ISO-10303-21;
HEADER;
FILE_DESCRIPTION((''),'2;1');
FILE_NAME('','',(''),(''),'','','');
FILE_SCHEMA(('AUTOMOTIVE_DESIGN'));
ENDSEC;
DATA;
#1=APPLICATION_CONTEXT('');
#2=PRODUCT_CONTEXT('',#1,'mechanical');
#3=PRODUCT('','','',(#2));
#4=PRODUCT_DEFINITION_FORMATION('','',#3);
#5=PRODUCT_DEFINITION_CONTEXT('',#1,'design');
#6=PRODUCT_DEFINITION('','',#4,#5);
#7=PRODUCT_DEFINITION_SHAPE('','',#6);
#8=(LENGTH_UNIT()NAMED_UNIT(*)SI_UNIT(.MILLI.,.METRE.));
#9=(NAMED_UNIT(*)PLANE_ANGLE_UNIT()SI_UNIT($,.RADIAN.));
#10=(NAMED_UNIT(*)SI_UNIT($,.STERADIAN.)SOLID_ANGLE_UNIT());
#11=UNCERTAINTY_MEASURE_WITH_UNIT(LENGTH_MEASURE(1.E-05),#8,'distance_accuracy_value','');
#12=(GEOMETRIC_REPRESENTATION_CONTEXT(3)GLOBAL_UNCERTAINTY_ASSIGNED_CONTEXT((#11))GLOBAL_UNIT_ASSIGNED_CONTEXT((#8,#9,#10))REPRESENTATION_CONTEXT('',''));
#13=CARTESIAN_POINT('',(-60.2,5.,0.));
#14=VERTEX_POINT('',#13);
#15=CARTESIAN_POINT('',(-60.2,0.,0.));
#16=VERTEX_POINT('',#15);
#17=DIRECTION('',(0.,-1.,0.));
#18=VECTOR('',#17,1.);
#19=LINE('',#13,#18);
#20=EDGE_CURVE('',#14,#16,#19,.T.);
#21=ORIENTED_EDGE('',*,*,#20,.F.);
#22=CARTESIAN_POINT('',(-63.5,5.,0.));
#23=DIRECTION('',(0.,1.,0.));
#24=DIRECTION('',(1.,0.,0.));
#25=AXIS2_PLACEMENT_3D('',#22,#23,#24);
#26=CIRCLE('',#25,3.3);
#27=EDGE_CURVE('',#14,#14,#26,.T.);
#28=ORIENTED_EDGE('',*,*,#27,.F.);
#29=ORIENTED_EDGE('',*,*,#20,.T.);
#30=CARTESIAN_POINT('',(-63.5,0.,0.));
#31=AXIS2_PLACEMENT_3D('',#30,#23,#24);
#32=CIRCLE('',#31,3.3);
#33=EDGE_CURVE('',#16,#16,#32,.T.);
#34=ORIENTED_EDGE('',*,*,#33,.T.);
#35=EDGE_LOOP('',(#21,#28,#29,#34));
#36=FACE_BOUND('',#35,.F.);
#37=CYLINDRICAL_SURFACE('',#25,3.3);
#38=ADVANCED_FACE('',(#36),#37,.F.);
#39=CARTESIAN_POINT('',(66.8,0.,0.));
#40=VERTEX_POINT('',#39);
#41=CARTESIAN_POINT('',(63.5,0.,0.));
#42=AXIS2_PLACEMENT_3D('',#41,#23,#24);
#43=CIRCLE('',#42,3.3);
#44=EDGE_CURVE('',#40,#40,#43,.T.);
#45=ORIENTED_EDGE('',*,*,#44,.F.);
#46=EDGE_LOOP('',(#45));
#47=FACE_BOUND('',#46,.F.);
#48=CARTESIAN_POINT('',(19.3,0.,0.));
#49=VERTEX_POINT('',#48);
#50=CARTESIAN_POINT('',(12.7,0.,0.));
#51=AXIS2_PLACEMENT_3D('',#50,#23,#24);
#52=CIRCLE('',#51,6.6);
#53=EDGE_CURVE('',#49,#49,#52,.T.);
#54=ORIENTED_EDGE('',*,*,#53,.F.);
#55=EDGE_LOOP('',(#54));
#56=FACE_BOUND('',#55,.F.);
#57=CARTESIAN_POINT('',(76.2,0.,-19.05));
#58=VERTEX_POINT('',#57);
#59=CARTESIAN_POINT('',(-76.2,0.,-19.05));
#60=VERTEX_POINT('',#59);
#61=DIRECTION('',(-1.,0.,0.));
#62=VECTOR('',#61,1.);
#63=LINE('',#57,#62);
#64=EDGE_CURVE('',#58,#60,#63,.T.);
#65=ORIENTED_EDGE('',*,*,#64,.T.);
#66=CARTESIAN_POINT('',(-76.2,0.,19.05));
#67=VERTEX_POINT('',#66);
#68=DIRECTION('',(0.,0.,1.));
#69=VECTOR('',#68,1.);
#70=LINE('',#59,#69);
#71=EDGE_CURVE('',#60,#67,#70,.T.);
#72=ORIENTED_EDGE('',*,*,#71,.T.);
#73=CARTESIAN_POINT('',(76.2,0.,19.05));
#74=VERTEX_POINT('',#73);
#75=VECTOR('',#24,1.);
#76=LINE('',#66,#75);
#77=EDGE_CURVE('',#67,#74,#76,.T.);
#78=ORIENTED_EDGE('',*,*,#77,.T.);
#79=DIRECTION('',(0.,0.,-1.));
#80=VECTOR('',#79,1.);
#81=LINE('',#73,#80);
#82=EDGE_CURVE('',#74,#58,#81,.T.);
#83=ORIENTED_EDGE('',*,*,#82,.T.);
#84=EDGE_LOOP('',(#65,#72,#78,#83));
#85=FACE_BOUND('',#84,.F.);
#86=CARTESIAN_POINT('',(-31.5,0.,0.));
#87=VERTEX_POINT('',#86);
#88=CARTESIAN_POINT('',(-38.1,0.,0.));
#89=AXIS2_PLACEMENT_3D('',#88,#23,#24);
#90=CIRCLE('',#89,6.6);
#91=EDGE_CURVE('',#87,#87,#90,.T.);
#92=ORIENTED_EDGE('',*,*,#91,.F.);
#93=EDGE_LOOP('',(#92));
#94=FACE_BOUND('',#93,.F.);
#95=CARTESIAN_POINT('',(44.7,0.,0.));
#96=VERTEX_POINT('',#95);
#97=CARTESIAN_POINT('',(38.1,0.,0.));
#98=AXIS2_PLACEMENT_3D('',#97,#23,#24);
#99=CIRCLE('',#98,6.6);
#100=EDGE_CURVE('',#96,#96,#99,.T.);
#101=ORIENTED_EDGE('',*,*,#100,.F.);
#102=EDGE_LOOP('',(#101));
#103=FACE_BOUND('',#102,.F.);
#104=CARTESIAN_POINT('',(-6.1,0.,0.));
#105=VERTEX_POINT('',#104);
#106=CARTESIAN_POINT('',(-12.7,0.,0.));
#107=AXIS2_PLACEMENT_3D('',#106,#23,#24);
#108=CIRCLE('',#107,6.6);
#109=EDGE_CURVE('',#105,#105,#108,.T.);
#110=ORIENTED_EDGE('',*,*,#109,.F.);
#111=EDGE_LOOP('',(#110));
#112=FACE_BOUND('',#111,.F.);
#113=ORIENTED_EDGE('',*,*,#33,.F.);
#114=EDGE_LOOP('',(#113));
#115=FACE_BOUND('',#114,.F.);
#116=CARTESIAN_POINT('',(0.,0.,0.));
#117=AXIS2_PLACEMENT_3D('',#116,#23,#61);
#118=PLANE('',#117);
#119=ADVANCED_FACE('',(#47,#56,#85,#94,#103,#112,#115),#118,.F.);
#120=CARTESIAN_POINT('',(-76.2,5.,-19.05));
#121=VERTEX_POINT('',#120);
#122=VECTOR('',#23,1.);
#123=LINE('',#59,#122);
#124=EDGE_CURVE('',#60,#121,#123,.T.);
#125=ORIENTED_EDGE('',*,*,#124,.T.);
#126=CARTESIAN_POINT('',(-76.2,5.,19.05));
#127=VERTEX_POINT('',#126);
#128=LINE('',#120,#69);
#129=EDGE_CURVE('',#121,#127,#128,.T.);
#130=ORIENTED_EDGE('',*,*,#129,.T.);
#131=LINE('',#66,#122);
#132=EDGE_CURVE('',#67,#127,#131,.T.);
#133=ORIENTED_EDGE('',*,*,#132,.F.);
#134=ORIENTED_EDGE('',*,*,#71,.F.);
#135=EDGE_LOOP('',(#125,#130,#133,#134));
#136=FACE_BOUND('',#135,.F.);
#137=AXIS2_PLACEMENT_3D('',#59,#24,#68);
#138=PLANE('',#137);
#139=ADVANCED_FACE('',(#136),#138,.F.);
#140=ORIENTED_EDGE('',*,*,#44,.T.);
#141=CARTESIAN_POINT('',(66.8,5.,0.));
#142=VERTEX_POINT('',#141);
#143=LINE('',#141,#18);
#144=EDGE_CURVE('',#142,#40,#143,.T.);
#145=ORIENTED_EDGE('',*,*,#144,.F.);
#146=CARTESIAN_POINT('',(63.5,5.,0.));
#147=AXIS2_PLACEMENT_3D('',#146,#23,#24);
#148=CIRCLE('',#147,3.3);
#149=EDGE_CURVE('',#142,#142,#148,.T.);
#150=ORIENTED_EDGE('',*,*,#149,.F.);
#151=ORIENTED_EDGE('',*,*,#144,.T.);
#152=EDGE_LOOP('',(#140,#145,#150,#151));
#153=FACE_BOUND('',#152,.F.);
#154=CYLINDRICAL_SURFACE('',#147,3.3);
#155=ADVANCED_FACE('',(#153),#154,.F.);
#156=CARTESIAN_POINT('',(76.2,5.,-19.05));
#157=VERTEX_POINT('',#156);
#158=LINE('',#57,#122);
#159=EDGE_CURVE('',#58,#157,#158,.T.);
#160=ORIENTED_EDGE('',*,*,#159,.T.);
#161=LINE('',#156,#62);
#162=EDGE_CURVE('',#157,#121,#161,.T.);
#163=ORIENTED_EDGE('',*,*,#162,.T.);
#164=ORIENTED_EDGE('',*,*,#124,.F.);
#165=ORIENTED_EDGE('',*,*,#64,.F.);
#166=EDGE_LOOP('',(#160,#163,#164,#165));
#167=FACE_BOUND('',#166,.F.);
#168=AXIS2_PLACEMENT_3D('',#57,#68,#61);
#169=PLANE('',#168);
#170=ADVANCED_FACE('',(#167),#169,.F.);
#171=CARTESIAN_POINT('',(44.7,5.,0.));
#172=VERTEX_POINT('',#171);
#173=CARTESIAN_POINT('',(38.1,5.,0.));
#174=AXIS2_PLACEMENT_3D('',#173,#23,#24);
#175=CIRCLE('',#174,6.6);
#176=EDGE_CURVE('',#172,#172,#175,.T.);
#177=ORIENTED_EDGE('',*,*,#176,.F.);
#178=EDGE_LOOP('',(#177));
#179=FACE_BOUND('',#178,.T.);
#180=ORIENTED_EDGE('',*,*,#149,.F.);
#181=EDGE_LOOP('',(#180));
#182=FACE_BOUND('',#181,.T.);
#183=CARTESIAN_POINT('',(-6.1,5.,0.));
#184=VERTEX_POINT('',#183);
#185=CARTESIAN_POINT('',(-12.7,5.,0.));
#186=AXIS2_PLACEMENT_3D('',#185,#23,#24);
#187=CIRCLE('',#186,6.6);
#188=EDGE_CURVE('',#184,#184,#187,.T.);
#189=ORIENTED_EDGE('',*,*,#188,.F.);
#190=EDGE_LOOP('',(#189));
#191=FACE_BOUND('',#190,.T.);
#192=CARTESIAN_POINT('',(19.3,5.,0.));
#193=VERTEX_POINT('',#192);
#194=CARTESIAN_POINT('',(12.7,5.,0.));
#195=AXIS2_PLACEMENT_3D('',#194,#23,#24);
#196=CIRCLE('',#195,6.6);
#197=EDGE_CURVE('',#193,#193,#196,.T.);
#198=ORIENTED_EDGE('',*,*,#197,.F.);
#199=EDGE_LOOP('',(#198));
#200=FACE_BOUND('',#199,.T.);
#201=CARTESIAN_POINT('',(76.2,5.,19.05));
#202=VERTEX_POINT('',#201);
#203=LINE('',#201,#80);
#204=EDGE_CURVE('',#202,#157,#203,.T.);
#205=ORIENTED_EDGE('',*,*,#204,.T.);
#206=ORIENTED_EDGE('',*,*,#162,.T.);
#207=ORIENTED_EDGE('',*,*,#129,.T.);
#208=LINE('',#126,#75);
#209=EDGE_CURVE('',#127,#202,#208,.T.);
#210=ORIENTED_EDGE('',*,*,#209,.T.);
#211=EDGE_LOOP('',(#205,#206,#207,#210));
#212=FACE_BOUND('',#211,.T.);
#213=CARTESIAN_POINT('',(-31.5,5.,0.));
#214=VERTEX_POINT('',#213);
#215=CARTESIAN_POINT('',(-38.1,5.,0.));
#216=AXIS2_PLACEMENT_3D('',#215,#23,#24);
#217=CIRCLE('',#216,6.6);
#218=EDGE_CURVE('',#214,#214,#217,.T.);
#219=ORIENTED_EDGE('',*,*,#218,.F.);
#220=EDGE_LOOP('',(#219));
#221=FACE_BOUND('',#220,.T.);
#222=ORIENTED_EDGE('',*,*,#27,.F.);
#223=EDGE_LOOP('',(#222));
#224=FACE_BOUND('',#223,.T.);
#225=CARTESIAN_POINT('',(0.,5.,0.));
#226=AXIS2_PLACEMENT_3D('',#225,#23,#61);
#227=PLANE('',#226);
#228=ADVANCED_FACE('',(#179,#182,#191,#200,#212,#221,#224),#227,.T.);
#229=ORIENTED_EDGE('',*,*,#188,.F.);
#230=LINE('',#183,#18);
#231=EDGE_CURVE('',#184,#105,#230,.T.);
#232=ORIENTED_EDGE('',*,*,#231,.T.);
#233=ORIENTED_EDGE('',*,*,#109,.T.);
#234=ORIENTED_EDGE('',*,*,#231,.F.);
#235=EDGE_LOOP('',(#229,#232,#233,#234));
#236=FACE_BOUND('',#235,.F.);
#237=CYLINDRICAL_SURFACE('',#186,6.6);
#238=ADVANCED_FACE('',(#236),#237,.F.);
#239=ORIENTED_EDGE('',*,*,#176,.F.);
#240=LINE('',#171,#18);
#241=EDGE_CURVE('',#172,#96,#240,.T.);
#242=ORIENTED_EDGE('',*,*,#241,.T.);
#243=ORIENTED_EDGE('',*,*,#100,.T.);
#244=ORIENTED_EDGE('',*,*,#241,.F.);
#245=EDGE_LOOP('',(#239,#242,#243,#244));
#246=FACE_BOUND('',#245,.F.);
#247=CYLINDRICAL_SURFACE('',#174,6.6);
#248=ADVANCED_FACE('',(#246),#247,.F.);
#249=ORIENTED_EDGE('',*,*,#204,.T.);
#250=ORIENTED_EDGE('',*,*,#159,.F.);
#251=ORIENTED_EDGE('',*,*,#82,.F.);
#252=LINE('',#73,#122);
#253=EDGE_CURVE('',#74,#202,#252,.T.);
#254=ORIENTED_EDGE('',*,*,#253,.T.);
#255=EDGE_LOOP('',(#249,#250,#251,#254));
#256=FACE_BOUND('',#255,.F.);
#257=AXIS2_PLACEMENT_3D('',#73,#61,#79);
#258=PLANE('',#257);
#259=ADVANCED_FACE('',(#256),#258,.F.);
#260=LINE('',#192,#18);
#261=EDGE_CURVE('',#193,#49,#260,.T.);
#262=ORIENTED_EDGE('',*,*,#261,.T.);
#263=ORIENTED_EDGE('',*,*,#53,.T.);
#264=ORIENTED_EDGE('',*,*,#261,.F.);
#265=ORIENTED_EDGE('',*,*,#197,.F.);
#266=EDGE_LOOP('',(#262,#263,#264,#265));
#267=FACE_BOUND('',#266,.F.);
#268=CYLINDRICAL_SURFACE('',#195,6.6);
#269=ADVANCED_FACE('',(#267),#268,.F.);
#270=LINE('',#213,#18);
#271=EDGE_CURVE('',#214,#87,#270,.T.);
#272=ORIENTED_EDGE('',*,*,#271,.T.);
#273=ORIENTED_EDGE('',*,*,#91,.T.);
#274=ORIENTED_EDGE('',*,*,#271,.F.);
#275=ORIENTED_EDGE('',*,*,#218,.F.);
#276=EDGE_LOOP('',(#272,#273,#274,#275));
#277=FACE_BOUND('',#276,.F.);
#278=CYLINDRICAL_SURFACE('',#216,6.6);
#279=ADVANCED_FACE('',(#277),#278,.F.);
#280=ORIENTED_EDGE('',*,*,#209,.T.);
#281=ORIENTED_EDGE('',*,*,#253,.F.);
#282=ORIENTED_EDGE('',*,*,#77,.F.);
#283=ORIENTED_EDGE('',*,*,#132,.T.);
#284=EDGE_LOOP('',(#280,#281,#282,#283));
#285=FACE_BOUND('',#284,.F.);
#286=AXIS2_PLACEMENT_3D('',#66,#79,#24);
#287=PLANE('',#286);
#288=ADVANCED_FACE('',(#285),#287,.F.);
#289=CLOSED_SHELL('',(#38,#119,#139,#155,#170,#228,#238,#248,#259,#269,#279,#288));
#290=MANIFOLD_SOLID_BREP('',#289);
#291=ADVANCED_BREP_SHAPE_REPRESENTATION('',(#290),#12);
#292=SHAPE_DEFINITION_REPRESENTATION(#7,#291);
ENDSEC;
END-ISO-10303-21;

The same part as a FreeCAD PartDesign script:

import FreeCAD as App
import Part
import Sketcher

V = App.Vector


def add_polygon(sketch, points):
    """Adds a closed chain of lines whose ends are joined by coincident constraints."""
    first, n = sketch.GeometryCount, len(points)
    for a, b in zip(points, points[1:] + points[:1]):
        sketch.addGeometry(Part.LineSegment(App.Vector(*a, 0), App.Vector(*b, 0)), False)
    for i in range(n):
        sketch.addConstraint(Sketcher.Constraint("Coincident", first + i, 2, first + (i + 1) % n, 1))

doc = App.newDocument("Part")
body = doc.addObject("PartDesign::Body", "Body")

sketch1 = body.newObject("Sketcher::SketchObject", "Sketch")
sketch1.AttachmentSupport = (doc.getObject("XZ_Plane"), [""])
sketch1.MapMode = "FlatFace"
add_polygon(sketch1, [(-76.2, -19.05), (-76.2, 19.05), (76.2, 19.05), (76.2, -19.05)])
sketch1.addConstraint(Sketcher.Constraint("Vertical", 0))
sketch1.addConstraint(Sketcher.Constraint("Horizontal", 1))
sketch1.addConstraint(Sketcher.Constraint("Vertical", 2))
sketch1.addConstraint(Sketcher.Constraint("Horizontal", 3))
sketch1.addConstraint(Sketcher.Constraint("Symmetric", 0, 2, 2, 2, -1, 1))
sketch1.addConstraint(Sketcher.Constraint("DistanceX", 1, 1, 1, 2, 152.4))
sketch1.addConstraint(Sketcher.Constraint("DistanceY", 0, 1, 0, 2, 38.1))
pad1 = body.newObject("PartDesign::Pad", "Pad")
pad1.Profile = sketch1
pad1.Length = 5
pad1.Reversed = True

sketch2 = body.newObject("Sketcher::SketchObject", "Sketch001")
sketch2.AttachmentSupport = (doc.getObject("XZ_Plane"), [""])
sketch2.MapMode = "FlatFace"
sketch2.AttachmentOffset = App.Placement(V(0, 0, -5), App.Rotation())
sketch2.addGeometry(Part.Circle(V(-38.1, 0, 0), V(0, 0, 1), 6.6), False)
sketch2.addGeometry(Part.Circle(V(-12.7, 0, 0), V(0, 0, 1), 6.6), False)
sketch2.addGeometry(Part.Circle(V(12.7, 0, 0), V(0, 0, 1), 6.6), False)
sketch2.addGeometry(Part.Circle(V(38.1, 0, 0), V(0, 0, 1), 6.6), False)
sketch2.addGeometry(Part.Circle(V(-63.5, 0, 0), V(0, 0, 1), 3.3), False)
sketch2.addGeometry(Part.Circle(V(63.5, 0, 0), V(0, 0, 1), 3.3), False)
sketch2.addConstraint(Sketcher.Constraint("Equal", 0, 1))
sketch2.addConstraint(Sketcher.Constraint("Equal", 1, 2))
sketch2.addConstraint(Sketcher.Constraint("Equal", 2, 3))
sketch2.addConstraint(Sketcher.Constraint("Equal", 4, 5))
sketch2.addConstraint(Sketcher.Constraint("Symmetric", 1, 3, 2, 3, -1, 1))
sketch2.addConstraint(Sketcher.Constraint("Symmetric", 0, 3, 3, 3, -1, 1))
sketch2.addConstraint(Sketcher.Constraint("Symmetric", 4, 3, 5, 3, -1, 1))
sketch2.addConstraint(Sketcher.Constraint("PointOnObject", 0, 3, -1))
sketch2.addConstraint(Sketcher.Constraint("PointOnObject", 1, 3, -1))
sketch2.addConstraint(Sketcher.Constraint("PointOnObject", 4, 3, -1))
sketch2.addConstraint(Sketcher.Constraint("Diameter", 0, 13.2))
sketch2.addConstraint(Sketcher.Constraint("Diameter", 4, 6.6))
sketch2.addConstraint(Sketcher.Constraint("DistanceX", 0, 3, -1, 1, 38.1))
sketch2.addConstraint(Sketcher.Constraint("DistanceX", 1, 3, -1, 1, 12.7))
sketch2.addConstraint(Sketcher.Constraint("DistanceX", 4, 3, 0, 3, 25.4))
pocket1 = body.newObject("PartDesign::Pocket", "Pocket")
pocket1.Profile = sketch2
pocket1.Type = "UpToFirst"
pocket1.Reversed = True

doc.recompute()
